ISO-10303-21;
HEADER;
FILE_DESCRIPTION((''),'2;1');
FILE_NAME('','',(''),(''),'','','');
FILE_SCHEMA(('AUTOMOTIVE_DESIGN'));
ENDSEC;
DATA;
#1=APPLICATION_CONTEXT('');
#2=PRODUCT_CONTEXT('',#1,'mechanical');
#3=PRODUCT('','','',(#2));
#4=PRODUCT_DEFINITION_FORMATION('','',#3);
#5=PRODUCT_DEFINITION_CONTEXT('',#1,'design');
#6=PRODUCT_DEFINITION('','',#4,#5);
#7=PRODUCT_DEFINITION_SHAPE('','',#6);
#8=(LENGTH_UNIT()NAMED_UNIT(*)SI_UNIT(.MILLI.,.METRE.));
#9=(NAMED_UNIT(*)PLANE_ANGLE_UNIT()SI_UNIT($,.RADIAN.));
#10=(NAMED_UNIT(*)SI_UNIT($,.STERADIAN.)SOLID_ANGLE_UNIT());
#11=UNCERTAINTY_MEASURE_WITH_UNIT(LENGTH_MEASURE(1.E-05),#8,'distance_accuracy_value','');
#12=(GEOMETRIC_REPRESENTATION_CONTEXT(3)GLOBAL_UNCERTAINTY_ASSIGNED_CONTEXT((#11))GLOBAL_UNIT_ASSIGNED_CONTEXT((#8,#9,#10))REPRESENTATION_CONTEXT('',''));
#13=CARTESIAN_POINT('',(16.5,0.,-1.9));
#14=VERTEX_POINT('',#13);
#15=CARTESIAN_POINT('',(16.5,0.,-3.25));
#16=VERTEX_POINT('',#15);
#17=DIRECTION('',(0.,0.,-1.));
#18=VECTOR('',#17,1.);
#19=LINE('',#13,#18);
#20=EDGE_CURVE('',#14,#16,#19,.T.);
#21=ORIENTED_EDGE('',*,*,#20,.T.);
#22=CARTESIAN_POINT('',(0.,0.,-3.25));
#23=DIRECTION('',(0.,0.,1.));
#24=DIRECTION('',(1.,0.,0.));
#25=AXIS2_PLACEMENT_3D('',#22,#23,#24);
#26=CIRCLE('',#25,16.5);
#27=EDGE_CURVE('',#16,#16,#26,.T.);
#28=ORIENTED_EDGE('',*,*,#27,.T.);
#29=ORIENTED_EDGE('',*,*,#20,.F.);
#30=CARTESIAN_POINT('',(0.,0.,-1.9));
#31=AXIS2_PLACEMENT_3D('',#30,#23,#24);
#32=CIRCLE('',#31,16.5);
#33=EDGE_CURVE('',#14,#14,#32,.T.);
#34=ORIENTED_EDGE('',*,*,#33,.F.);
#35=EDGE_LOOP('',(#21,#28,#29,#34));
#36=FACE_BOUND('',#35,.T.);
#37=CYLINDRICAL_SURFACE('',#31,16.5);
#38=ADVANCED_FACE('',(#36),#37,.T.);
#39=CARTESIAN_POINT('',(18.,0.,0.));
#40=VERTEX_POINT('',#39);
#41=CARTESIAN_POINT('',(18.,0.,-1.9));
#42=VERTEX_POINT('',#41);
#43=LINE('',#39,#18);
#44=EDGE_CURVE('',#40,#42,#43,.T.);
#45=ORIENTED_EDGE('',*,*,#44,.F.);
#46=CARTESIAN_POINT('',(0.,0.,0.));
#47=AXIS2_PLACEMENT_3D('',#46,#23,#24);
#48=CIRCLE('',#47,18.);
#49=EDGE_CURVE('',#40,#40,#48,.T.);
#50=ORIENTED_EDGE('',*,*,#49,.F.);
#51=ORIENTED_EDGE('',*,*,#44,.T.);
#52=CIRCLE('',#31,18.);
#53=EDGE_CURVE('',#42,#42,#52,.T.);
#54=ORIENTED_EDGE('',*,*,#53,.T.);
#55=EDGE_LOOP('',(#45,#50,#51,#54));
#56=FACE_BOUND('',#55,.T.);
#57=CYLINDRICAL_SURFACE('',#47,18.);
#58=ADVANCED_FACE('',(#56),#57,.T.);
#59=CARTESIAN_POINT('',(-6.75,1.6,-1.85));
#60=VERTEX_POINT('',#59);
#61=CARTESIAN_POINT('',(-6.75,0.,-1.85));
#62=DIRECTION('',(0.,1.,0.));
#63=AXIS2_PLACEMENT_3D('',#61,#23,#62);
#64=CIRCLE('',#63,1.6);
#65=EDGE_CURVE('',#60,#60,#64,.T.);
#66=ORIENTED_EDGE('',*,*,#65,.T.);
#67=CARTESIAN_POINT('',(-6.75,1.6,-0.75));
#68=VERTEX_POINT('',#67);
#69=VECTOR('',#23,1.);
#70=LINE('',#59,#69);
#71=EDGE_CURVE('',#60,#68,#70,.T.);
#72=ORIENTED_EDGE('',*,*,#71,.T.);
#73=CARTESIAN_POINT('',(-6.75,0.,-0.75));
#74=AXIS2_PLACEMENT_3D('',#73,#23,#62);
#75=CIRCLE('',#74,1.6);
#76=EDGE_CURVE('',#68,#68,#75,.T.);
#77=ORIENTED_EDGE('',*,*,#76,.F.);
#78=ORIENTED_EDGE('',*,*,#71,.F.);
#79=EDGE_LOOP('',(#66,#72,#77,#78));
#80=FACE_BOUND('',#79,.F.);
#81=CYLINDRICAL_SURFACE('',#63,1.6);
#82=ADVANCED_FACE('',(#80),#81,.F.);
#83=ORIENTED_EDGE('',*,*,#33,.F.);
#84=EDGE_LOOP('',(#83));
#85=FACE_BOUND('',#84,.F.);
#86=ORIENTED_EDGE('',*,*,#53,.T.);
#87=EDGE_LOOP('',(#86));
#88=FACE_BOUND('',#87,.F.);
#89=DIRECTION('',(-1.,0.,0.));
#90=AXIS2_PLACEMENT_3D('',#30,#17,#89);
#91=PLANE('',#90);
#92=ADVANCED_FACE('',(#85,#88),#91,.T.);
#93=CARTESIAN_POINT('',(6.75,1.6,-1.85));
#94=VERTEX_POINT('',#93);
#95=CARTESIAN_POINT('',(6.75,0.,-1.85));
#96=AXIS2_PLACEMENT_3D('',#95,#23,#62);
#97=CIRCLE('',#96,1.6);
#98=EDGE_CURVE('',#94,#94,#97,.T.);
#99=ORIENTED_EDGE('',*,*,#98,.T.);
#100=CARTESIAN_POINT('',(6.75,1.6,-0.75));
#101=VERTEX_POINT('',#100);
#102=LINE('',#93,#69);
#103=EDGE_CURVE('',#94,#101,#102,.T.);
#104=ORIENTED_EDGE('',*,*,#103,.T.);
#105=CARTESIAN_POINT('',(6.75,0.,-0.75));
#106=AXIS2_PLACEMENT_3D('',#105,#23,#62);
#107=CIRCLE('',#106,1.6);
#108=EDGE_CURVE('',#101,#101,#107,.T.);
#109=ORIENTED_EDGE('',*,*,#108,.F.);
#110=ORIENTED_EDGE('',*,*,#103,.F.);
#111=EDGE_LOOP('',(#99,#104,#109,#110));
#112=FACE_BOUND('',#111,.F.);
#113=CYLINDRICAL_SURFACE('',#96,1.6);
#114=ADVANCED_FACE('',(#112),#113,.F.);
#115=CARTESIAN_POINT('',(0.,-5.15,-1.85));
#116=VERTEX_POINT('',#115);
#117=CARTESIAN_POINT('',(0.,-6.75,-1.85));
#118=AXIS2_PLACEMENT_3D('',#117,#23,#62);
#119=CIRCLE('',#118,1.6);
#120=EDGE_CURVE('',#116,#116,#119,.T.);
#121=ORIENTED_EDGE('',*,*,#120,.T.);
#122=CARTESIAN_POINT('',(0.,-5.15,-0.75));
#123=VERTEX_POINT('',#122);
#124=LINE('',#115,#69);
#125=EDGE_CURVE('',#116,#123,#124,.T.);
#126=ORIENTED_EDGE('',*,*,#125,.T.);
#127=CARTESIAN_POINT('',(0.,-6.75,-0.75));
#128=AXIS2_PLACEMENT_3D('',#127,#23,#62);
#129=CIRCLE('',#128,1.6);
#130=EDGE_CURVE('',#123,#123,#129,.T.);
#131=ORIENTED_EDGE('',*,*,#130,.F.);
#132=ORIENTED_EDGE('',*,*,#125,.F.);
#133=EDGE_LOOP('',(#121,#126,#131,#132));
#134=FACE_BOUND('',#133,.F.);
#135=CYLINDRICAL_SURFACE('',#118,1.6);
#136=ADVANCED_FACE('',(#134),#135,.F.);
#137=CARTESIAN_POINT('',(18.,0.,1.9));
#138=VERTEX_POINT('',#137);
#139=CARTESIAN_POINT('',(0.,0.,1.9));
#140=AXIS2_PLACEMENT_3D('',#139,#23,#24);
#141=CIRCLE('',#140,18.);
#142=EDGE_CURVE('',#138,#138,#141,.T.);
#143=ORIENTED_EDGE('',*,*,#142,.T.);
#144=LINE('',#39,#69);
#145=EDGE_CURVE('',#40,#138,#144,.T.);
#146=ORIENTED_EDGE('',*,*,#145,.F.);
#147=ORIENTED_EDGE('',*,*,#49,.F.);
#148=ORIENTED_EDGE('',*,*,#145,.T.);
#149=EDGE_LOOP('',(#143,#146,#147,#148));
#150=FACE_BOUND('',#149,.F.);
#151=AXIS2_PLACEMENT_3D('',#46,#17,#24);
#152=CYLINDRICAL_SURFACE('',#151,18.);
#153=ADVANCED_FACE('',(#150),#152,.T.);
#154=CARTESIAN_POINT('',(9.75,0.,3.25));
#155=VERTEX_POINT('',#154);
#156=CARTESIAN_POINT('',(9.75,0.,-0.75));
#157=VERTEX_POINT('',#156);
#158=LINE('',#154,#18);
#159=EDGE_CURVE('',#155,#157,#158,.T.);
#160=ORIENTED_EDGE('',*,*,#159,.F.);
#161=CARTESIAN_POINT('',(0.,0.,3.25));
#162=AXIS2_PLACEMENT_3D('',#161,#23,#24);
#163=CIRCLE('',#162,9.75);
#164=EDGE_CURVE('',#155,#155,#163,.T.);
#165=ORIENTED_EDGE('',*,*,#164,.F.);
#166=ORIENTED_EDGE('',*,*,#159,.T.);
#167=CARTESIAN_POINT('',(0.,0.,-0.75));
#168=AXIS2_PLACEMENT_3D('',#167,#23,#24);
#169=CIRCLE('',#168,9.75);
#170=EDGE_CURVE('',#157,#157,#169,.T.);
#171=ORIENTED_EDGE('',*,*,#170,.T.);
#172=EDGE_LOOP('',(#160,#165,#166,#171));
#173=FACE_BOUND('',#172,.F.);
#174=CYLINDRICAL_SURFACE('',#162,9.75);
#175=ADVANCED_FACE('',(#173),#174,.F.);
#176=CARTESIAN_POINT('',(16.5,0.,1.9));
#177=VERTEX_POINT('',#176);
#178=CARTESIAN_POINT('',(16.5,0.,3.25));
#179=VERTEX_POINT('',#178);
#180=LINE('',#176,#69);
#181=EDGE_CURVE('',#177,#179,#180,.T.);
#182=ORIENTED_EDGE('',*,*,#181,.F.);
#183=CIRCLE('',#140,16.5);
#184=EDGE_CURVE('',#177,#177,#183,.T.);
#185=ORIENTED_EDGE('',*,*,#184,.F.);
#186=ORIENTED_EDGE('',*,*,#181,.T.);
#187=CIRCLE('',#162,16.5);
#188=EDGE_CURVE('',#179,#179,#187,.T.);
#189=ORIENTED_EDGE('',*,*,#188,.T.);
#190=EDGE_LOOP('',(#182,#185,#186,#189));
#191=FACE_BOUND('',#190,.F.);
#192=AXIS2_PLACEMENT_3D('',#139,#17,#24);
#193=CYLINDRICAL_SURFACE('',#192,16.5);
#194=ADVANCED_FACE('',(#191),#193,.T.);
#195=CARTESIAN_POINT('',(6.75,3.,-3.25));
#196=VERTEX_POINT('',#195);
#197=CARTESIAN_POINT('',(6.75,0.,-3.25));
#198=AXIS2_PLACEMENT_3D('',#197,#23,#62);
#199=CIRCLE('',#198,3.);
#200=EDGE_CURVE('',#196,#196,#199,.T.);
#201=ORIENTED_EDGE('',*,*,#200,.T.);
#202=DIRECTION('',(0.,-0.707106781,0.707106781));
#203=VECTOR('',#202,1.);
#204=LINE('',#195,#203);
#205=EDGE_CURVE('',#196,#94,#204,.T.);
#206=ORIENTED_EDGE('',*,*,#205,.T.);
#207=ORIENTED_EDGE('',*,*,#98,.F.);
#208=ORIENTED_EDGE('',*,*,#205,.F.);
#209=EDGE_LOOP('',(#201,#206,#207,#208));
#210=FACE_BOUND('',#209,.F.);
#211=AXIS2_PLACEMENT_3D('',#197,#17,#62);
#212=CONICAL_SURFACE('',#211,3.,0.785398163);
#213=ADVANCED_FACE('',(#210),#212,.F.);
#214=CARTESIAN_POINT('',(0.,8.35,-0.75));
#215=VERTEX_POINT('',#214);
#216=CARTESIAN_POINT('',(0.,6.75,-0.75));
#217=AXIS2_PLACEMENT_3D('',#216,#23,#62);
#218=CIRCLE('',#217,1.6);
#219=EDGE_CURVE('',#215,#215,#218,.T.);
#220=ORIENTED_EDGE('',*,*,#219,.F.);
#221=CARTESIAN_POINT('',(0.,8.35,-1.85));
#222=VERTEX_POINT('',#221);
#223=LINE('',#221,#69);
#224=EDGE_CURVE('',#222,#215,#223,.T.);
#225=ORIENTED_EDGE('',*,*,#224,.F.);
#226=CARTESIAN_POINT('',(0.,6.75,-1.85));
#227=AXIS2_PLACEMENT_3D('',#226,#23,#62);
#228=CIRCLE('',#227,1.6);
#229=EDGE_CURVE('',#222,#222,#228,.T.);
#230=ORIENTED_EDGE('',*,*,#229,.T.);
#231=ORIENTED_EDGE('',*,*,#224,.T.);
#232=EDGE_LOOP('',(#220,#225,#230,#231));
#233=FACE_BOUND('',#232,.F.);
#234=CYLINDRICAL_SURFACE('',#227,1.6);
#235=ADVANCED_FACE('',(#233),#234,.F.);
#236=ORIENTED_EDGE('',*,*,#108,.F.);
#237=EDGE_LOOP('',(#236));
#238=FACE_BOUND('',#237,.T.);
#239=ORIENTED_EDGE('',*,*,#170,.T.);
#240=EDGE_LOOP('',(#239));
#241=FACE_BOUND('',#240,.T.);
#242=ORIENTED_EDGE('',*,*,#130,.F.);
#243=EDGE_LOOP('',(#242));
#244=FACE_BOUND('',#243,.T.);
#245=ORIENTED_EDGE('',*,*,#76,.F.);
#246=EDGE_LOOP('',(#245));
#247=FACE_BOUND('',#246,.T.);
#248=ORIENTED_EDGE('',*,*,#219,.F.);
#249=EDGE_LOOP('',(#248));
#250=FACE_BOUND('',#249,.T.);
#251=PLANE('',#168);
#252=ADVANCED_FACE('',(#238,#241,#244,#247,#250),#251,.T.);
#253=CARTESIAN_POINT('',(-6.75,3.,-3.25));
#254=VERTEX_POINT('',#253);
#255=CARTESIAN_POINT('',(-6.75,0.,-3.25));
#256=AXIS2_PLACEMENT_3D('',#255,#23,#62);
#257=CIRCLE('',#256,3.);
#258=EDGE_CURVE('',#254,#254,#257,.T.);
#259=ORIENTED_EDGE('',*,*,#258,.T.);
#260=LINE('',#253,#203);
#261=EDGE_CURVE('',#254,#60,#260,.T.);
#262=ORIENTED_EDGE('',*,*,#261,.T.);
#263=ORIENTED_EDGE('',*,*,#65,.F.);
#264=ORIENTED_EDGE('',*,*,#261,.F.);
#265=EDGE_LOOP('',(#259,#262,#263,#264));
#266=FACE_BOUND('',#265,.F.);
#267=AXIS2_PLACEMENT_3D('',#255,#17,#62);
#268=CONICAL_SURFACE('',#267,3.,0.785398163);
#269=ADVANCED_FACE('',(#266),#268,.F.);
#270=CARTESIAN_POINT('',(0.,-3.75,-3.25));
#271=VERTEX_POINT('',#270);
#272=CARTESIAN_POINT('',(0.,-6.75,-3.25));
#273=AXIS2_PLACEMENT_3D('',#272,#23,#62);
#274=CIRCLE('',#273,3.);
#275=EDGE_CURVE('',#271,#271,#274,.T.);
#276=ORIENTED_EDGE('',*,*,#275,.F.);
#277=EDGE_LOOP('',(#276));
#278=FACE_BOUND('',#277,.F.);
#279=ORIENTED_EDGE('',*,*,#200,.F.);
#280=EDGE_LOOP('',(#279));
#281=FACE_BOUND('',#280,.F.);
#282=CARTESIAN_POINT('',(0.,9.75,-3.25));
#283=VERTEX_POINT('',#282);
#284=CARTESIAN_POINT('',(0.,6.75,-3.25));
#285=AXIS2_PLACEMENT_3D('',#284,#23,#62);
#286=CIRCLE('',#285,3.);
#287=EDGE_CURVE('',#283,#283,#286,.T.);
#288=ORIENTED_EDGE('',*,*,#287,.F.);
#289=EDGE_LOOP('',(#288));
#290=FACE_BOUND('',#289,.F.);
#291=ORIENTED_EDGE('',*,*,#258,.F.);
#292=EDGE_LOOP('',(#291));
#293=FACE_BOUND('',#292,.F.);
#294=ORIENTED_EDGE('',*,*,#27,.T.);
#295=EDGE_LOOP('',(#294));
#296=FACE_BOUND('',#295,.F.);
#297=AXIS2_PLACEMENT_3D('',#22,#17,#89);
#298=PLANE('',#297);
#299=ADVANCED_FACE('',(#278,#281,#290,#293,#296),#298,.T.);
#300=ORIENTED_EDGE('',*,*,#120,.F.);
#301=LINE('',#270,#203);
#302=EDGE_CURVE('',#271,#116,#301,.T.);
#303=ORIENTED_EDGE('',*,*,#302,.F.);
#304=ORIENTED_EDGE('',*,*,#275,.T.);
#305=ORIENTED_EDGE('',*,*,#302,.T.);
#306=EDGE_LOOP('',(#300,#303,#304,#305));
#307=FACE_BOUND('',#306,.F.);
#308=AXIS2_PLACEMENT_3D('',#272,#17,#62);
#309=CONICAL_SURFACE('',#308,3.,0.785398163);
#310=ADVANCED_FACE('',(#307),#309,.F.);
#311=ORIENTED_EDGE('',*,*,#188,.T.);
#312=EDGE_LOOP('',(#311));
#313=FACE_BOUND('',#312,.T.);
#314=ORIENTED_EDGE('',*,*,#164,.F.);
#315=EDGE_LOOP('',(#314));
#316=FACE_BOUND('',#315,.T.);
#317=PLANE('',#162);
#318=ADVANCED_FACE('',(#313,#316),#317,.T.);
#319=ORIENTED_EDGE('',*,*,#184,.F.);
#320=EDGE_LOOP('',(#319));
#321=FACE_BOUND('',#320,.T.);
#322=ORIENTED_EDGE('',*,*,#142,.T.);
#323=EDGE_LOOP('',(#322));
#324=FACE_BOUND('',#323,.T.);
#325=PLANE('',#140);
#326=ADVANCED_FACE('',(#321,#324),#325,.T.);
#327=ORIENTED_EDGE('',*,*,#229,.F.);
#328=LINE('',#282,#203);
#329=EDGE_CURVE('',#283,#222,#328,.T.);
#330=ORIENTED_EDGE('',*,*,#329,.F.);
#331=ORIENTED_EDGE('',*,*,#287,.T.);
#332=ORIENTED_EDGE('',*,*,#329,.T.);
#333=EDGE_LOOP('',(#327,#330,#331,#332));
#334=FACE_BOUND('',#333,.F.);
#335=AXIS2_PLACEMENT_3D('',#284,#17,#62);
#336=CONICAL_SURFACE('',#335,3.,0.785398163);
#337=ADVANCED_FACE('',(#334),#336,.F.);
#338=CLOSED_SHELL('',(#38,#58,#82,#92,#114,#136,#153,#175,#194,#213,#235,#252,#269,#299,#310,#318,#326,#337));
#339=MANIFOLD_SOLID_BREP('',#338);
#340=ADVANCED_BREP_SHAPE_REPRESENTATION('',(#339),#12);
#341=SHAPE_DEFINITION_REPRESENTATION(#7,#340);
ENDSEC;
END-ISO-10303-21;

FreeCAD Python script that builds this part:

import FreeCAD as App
import Part
import Sketcher
Q = App.Units.Quantity

doc = App.newDocument("Part")
params = doc.addObject("Spreadsheet::Sheet", "Params")
for row, (alias, value) in enumerate([
    ("sketch1_diameter", "36 mm"),
    ("pad1_length", "1.9 mm"),
    ("sketch2_diameter", "33 mm"),
    ("pad2_length", "1.35 mm"),
    ("sketch3_diameter", "19.5 mm"),
    ("pocket1_length", "4 mm"),
    ("sketch4_diameter", "3.2 mm"),
    ("hole_diameter", "3.2 mm"),
    ("hole_csink_diameter", "6 mm"),
], start=1):
    params.set(f"A{row}", alias)
    params.set(f"B{row}", "=" + value)
    params.setAlias(f"B{row}", alias)

body = doc.addObject("PartDesign::Body", "Body")

# Sketch on XY plane
sketch1 = body.newObject("Sketcher::SketchObject", "Sketch")
sketch1.AttachmentSupport = (doc.getObject("XY_Plane"), [""])
sketch1.MapMode = "FlatFace"
sketch1.addGeometry(Part.Circle(App.Vector(0, 0, 0), App.Vector(0, 0, 1), 18), False)
sketch1.addConstraint([
    Sketcher.Constraint("Coincident", 0, 3, -1, 1),
    Sketcher.Constraint("Diameter", 0, Q("36 mm")),
])
sketch1.setExpression("Constraints[1]", "Params.sketch1_diameter")
pad1 = body.newObject("PartDesign::Pad", "Pad")
pad1.Profile = sketch1
pad1.setExpression("Length", "Params.pad1_length")

# Sketch on XY plane
sketch2 = body.newObject("Sketcher::SketchObject", "Sketch001")
sketch2.AttachmentSupport = (doc.getObject("XY_Plane"), [""])
sketch2.MapMode = "FlatFace"
sketch2.AttachmentOffset = App.Placement(App.Vector(0, 0, 1.9), App.Rotation())
sketch2.addGeometry(Part.Circle(App.Vector(0, 0, 0), App.Vector(0, 0, 1), 16), False)
sketch2.addConstraint([
    Sketcher.Constraint("Coincident", 0, 3, -1, 1),
    Sketcher.Constraint("Diameter", 0, Q("33 mm")),
])
sketch2.setExpression("Constraints[1]", "Params.sketch2_diameter")
pad2 = body.newObject("PartDesign::Pad", "Pad001")
pad2.Profile = sketch2
pad2.setExpression("Length", "Params.pad2_length")
doc.recompute()

mirrored = body.newObject("PartDesign::Mirrored", "Mirrored")
mirrored.TransformMode = "Transform body"
mirrored.MirrorPlane = (doc.getObject("XY_Plane"), [""])
body.Tip = mirrored

# Sketch on XY plane
sketch3 = body.newObject("Sketcher::SketchObject", "Sketch002")
sketch3.AttachmentSupport = (doc.getObject("XY_Plane"), [""])
sketch3.MapMode = "FlatFace"
sketch3.AttachmentOffset = App.Placement(App.Vector(0, 0, 3.25), App.Rotation())
sketch3.addGeometry(Part.Circle(App.Vector(0, 0, 0), App.Vector(0, 0, 1), 10), False)
sketch3.addConstraint([
    Sketcher.Constraint("Coincident", 0, 3, -1, 1),
    Sketcher.Constraint("Diameter", 0, Q("19.5 mm")),
])
sketch3.setExpression("Constraints[1]", "Params.sketch3_diameter")
pocket1 = body.newObject("PartDesign::Pocket", "Pocket")
pocket1.Profile = sketch3
pocket1.setExpression("Length", "Params.pocket1_length")

# Sketch on XY plane
sketch4 = body.newObject("Sketcher::SketchObject", "Sketch003")
sketch4.AttachmentSupport = (doc.getObject("XY_Plane"), [""])
sketch4.MapMode = "FlatFace"
sketch4.AttachmentOffset = App.Placement(App.Vector(0, 0, -3.25), App.Rotation())
sketch4.addGeometry([
    Part.Circle(App.Vector(0, 6.8, 0), App.Vector(0, 0, 1), 1.6),
    Part.Circle(App.Vector(6.8, 0, 0), App.Vector(0, 0, 1), 1.6),
    Part.Circle(App.Vector(-6.8, 0, 0), App.Vector(0, 0, 1), 1.6),
    Part.Circle(App.Vector(0, -6.8, 0), App.Vector(0, 0, 1), 1.6),
], False)
sketch4.addConstraint([
    Sketcher.Constraint("Equal", 0, 1),
    Sketcher.Constraint("Equal", 1, 2),
    Sketcher.Constraint("Equal", 2, 3),
    Sketcher.Constraint("Symmetric", 1, 3, 2, 3, -1, 1),
    Sketcher.Constraint("Symmetric", 0, 3, 3, 3, -1, 1),
    Sketcher.Constraint("PointOnObject", 0, 3, -2),
    Sketcher.Constraint("PointOnObject", 1, 3, -1),
    Sketcher.Constraint("Diameter", 0, Q("3.2 mm")),
    Sketcher.Constraint("DistanceX", 2, 3, 1, 3, Q("13.5 mm")),
    Sketcher.Constraint("DistanceY", 3, 3, 0, 3, Q("13.5 mm")),
])
sketch4.setExpression("Constraints[7]", "Params.sketch4_diameter")
doc.recompute()
hole = body.newObject("PartDesign::Hole", "Hole")
hole.Profile = sketch4
hole.ThreadType = "None"
hole.setExpression("Diameter", "Params.hole_diameter")
hole.DepthType = "ThroughAll"
hole.HoleCutType = "Countersink"
hole.setExpression("HoleCutDiameter", "Params.hole_csink_diameter")
hole.HoleCutCountersinkAngle = 90
hole.Reversed = True

doc.recompute()
